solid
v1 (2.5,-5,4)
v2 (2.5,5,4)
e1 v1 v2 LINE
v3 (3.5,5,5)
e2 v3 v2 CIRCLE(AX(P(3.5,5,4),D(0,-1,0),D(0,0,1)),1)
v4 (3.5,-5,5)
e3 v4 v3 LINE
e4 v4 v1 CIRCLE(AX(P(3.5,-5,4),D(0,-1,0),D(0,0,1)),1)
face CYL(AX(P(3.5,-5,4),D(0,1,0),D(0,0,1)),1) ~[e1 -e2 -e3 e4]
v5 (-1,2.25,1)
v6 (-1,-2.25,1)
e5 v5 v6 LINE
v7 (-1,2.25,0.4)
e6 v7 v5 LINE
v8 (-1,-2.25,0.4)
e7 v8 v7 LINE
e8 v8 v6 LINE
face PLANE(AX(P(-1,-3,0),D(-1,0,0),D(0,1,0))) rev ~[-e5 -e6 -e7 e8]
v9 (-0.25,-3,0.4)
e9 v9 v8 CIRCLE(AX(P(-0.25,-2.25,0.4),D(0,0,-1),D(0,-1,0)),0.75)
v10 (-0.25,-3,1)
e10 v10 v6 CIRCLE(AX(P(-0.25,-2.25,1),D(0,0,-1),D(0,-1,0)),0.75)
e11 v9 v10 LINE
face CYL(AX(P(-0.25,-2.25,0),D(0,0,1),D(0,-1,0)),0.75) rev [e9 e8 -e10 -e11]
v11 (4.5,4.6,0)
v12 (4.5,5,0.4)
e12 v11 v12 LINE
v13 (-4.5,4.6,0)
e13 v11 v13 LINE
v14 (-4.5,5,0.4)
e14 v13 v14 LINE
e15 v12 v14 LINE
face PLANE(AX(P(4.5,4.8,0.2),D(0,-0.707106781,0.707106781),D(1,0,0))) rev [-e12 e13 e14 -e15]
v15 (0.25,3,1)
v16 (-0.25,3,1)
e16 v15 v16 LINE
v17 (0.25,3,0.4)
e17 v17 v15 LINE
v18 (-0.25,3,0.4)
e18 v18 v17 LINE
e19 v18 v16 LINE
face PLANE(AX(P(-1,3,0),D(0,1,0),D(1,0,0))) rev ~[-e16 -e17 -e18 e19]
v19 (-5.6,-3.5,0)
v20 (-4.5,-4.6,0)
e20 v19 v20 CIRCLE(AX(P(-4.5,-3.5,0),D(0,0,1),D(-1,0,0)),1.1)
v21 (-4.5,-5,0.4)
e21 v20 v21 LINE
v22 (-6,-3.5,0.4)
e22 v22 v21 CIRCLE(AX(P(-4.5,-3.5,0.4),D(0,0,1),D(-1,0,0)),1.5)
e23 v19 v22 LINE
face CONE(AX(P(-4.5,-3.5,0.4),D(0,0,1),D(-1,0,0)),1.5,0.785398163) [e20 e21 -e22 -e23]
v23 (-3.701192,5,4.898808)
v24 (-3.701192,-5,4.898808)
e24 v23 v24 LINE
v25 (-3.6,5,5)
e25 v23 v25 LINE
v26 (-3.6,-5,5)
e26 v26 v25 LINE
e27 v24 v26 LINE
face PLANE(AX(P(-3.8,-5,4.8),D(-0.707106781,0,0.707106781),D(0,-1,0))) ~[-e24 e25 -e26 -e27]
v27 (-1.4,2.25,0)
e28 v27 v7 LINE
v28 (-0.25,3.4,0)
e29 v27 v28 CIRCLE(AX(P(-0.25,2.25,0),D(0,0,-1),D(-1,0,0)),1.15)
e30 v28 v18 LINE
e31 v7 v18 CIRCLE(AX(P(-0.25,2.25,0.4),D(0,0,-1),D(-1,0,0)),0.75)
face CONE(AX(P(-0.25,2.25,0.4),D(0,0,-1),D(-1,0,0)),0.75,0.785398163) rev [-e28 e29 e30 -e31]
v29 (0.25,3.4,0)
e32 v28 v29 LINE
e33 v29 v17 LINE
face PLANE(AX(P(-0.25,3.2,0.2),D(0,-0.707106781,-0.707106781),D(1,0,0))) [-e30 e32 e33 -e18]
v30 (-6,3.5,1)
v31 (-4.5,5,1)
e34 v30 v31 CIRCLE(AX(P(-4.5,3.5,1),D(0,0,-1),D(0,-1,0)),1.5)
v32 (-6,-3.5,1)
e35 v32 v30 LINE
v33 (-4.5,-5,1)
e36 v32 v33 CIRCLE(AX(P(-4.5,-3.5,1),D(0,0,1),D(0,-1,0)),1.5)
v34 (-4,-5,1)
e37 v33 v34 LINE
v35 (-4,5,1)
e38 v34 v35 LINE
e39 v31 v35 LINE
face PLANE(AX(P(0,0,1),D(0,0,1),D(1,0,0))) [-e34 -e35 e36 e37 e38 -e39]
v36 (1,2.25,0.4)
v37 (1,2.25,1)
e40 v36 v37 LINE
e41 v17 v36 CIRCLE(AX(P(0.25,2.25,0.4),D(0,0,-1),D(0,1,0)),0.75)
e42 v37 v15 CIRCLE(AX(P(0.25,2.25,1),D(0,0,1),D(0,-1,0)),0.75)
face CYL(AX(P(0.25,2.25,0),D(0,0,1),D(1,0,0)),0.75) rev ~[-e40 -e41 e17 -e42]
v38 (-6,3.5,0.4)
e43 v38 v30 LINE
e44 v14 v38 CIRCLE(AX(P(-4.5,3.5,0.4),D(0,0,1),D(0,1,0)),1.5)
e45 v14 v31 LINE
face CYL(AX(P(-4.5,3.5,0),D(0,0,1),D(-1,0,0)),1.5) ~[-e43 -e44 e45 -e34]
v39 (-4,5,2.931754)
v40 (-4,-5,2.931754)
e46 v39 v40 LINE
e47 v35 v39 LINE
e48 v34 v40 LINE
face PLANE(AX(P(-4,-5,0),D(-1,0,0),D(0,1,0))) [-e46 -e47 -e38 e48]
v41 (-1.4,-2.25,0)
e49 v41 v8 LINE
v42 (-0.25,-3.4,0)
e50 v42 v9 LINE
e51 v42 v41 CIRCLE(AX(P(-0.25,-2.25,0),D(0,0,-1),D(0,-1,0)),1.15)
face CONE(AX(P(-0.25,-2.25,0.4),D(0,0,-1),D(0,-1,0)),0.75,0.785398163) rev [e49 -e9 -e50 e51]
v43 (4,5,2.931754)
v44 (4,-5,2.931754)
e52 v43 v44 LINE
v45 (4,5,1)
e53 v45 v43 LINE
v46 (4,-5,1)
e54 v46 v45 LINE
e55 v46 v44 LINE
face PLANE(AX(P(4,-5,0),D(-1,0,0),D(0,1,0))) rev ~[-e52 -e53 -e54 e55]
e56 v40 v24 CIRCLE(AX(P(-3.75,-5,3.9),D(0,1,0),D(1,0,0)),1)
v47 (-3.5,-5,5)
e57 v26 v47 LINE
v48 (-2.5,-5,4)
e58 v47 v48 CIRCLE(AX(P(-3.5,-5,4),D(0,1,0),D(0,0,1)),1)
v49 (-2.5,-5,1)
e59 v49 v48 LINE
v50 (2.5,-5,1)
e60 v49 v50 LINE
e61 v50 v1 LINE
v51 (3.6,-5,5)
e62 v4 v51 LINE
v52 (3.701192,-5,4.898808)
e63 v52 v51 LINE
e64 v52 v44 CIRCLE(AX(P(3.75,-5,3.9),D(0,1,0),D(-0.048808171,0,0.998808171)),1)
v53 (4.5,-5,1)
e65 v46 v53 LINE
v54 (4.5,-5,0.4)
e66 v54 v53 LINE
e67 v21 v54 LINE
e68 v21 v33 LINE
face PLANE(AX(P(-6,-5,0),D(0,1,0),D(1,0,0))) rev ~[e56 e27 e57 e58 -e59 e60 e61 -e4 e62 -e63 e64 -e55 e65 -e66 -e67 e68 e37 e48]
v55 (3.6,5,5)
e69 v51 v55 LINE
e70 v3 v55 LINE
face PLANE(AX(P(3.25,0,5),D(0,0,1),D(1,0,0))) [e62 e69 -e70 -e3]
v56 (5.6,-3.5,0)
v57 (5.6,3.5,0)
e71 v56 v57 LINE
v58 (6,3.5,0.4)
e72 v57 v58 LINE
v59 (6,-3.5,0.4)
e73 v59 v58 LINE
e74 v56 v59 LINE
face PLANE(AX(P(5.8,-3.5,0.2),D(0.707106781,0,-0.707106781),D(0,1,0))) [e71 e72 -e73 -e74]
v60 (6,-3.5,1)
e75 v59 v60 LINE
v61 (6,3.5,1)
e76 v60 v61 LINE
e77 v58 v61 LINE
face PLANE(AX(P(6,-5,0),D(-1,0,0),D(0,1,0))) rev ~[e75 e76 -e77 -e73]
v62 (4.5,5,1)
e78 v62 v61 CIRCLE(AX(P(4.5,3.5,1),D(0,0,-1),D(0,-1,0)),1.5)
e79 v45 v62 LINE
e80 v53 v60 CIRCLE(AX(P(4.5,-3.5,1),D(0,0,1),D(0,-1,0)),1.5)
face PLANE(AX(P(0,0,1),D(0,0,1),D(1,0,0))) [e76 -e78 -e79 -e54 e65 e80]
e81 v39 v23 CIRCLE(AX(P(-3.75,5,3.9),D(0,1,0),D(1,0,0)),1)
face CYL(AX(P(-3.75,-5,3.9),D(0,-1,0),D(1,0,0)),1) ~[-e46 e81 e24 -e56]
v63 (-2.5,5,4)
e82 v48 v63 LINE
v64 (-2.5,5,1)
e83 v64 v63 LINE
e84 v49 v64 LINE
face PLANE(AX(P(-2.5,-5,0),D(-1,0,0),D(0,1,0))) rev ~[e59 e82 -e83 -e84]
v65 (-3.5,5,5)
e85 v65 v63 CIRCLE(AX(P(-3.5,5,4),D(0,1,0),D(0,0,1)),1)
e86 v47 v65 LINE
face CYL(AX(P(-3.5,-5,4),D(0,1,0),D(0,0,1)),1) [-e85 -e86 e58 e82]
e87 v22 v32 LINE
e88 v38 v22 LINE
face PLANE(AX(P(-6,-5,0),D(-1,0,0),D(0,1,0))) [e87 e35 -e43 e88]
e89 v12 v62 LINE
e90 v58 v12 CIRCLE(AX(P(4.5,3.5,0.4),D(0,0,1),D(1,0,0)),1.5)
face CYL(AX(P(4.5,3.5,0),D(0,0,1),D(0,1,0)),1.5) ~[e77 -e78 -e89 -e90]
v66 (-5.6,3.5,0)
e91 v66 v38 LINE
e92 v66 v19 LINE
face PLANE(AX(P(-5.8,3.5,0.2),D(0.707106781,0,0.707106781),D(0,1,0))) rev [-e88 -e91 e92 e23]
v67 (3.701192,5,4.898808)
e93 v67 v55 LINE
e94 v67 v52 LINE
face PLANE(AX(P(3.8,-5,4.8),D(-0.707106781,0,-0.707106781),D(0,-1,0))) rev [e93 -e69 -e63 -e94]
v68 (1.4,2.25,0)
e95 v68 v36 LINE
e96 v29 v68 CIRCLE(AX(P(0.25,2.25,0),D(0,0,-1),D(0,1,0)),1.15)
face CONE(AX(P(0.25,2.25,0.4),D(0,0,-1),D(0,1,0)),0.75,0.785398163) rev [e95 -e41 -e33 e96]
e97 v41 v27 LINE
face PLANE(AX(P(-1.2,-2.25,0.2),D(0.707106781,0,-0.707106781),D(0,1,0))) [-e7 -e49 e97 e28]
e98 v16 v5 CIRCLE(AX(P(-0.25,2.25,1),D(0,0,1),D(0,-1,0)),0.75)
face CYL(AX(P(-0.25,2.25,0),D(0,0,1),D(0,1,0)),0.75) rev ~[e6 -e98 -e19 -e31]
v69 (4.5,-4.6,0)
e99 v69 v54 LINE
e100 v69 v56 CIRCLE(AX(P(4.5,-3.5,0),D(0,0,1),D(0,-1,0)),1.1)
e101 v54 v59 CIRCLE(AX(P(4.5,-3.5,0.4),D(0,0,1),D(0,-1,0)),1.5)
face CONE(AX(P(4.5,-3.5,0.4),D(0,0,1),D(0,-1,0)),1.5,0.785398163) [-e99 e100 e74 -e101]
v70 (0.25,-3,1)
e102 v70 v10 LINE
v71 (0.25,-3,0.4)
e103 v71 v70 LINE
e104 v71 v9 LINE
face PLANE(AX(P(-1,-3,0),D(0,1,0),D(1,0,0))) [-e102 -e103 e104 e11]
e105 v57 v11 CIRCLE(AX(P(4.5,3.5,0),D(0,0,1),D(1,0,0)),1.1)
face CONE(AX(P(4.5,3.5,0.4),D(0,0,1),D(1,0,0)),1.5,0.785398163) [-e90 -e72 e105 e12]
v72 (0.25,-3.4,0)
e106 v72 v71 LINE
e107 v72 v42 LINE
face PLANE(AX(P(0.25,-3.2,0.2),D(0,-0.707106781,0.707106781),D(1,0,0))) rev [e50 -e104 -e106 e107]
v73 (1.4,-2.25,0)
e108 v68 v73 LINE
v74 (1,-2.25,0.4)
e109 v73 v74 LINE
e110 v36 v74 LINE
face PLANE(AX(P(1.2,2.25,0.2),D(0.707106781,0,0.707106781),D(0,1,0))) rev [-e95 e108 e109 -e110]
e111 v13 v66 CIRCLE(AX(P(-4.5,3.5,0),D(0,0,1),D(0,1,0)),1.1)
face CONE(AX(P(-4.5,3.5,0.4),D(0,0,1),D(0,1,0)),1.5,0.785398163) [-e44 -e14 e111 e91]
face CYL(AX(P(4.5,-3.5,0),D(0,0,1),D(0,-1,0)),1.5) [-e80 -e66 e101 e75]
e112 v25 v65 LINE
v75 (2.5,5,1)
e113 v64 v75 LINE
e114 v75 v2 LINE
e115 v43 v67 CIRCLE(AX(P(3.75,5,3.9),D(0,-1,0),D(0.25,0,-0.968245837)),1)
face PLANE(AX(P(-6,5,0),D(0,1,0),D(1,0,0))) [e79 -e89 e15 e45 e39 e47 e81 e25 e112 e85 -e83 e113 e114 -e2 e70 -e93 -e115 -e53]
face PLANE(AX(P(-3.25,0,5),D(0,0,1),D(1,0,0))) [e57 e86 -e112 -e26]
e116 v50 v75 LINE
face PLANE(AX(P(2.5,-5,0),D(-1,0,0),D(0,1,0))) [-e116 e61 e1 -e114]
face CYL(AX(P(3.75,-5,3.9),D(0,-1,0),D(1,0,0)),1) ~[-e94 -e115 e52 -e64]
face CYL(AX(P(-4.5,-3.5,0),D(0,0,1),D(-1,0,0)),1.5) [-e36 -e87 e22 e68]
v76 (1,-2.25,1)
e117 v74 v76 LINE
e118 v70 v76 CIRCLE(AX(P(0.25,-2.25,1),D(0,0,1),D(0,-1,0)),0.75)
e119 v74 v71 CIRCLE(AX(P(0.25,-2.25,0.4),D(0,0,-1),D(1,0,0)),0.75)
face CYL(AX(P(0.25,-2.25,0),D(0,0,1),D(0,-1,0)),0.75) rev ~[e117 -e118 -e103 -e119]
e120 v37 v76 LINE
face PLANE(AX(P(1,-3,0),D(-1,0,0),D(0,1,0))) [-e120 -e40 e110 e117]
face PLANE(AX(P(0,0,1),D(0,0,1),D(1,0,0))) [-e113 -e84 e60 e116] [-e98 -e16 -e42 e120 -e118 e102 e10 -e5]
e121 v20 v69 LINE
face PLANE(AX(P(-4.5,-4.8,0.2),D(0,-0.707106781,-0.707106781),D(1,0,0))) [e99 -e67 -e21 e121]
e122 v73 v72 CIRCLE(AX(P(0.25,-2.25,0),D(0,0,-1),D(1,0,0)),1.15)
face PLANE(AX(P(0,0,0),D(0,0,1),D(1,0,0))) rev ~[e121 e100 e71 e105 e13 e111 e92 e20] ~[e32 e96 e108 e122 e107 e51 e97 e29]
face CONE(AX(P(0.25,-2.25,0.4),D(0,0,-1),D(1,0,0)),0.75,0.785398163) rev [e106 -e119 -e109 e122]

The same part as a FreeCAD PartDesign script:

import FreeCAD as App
import Part
import Sketcher

V = App.Vector
Q = App.Units.Quantity


def edges_at(feature, points):
    """Names of the edges that pass closest to the given points."""
    edges = feature.Shape.Edges
    near = lambda p: min(range(len(edges)), key=lambda i: edges[i].distToShape(Part.Vertex(*p))[0])
    return sorted({f"Edge{near(p) + 1}" for p in points})

doc = App.newDocument("Part")
body = doc.addObject("PartDesign::Body", "Body")

sketch1 = body.newObject("Sketcher::SketchObject", "Sketch")
sketch1.AttachmentSupport = (doc.getObject("XY_Plane"), [""])
sketch1.MapMode = "FlatFace"
sketch1.addGeometry(Part.LineSegment(V(-1, 3, 0), V(-1, -3, 0)), False)
sketch1.addGeometry(Part.LineSegment(V(-1, -3, 0), V(1, -3, 0)), False)
sketch1.addGeometry(Part.LineSegment(V(1, -3, 0), V(1, 3, 0)), False)
sketch1.addGeometry(Part.LineSegment(V(1, 3, 0), V(-1, 3, 0)), False)
sketch1.addConstraint(Sketcher.Constraint("Coincident", 0, 2, 1, 1))
sketch1.addConstraint(Sketcher.Constraint("Coincident", 1, 2, 2, 1))
sketch1.addConstraint(Sketcher.Constraint("Coincident", 2, 2, 3, 1))
sketch1.addConstraint(Sketcher.Constraint("Coincident", 3, 2, 0, 1))
sketch1.addConstraint(Sketcher.Constraint("Vertical", 0))
sketch1.addConstraint(Sketcher.Constraint("Horizontal", 1))
sketch1.addConstraint(Sketcher.Constraint("Vertical", 2))
sketch1.addConstraint(Sketcher.Constraint("Horizontal", 3))
sketch1.addConstraint(Sketcher.Constraint("Symmetric", 0, 2, 2, 2, -1, 1))
sketch1.addConstraint(Sketcher.Constraint("DistanceX", 1, 1, 1, 2, Q("2 mm")))
sketch1.addConstraint(Sketcher.Constraint("DistanceY", 0, 2, 0, 1, Q("6 mm")))
pad1 = body.newObject("PartDesign::Pad", "Pad")
pad1.Profile = sketch1
pad1.Length = 10
body2 = doc.addObject("PartDesign::Body", "Body001")

sketch2 = body2.newObject("Sketcher::SketchObject", "Sketch001")
sketch2.AttachmentSupport = (doc.getObject("XY_Plane001"), [""])
sketch2.MapMode = "FlatFace"
sketch2.addGeometry(Part.LineSegment(V(-4, 5, 0), V(-4, -5, 0)), False)
sketch2.addGeometry(Part.LineSegment(V(-4, -5, 0), V(-2.5, -5, 0)), False)
sketch2.addGeometry(Part.LineSegment(V(-2.5, -5, 0), V(-2.5, 5, 0)), False)
sketch2.addGeometry(Part.LineSegment(V(-2.5, 5, 0), V(-4, 5, 0)), False)
sketch2.addConstraint(Sketcher.Constraint("Coincident", 0, 2, 1, 1))
sketch2.addConstraint(Sketcher.Constraint("Coincident", 1, 2, 2, 1))
sketch2.addConstraint(Sketcher.Constraint("Coincident", 2, 2, 3, 1))
sketch2.addConstraint(Sketcher.Constraint("Coincident", 3, 2, 0, 1))
sketch2.addConstraint(Sketcher.Constraint("Vertical", 0))
sketch2.addConstraint(Sketcher.Constraint("Horizontal", 1))
sketch2.addConstraint(Sketcher.Constraint("Vertical", 2))
sketch2.addConstraint(Sketcher.Constraint("Horizontal", 3))
sketch2.addConstraint(Sketcher.Constraint("DistanceY", 0, 2, 0, 1, Q("10 mm")))
sketch2.addConstraint(Sketcher.Constraint("DistanceX", 1, 1, 1, 2, Q("1.5 mm")))
sketch2.addConstraint(Sketcher.Constraint("DistanceX", 0, 2, -1, 1, Q("4 mm")))
sketch2.addConstraint(Sketcher.Constraint("DistanceY", 0, 2, -1, 1, Q("5 mm")))
pad2 = body2.newObject("PartDesign::Pad", "Pad001")
pad2.Profile = sketch2
pad2.Length = 5
doc.recompute()

chamfer = body2.newObject("PartDesign::Chamfer", "Chamfer")
chamfer.Base = (pad2, edges_at(pad2, [(-4, 0, 5)]))
chamfer.Size = 0.4
body3 = doc.addObject("PartDesign::Body", "Body002")

sketch3 = body3.newObject("Sketcher::SketchObject", "Sketch002")
sketch3.AttachmentSupport = (doc.getObject("XZ_Plane002"), [""])
sketch3.MapMode = "FlatFace"
sketch3.AttachmentOffset = App.Placement(V(0, 0, 5), App.Rotation())
sketch3.addGeometry(Part.Circle(V(3.8, 3.9, 0), V(0, 0, 1), 1), False)
sketch3.addConstraint(Sketcher.Constraint("Diameter", 0, Q("2 mm")))
sketch3.addConstraint(Sketcher.Constraint("DistanceY", -1, 1, 0, 3, Q("3.9 mm")))
sketch3.addConstraint(Sketcher.Constraint("DistanceX", -1, 1, 0, 3, Q("3.75 mm")))
pad3 = body3.newObject("PartDesign::Pad", "Pad002")
pad3.Profile = sketch3
pad3.Length = 10
pad3.Reversed = True
body4 = doc.addObject("PartDesign::Body", "Body003")

sketch4 = body4.newObject("Sketcher::SketchObject", "Sketch003")
sketch4.AttachmentSupport = (doc.getObject("XZ_Plane003"), [""])
sketch4.MapMode = "FlatFace"
sketch4.AttachmentOffset = App.Placement(V(0, 0, 5), App.Rotation())
sketch4.addGeometry(Part.Circle(V(-3.8, 3.9, 0), V(0, 0, 1), 1), False)
sketch4.addConstraint(Sketcher.Constraint("Diameter", 0, Q("2 mm")))
sketch4.addConstraint(Sketcher.Constraint("DistanceY", -1, 1, 0, 3, Q("3.9 mm")))
sketch4.addConstraint(Sketcher.Constraint("DistanceX", 0, 3, -1, 1, Q("3.75 mm")))
pad4 = body4.newObject("PartDesign::Pad", "Pad003")
pad4.Profile = sketch4
pad4.Length = 10
pad4.Reversed = True
body5 = doc.addObject("PartDesign::Body", "Body004")

sketch5 = body5.newObject("Sketcher::SketchObject", "Sketch004")
sketch5.AttachmentSupport = (doc.getObject("XY_Plane004"), [""])
sketch5.MapMode = "FlatFace"
sketch5.addGeometry(Part.LineSegment(V(-6, 5, 0), V(-6, -5, 0)), False)
sketch5.addGeometry(Part.LineSegment(V(-6, -5, 0), V(6, -5, 0)), False)
sketch5.addGeometry(Part.LineSegment(V(6, -5, 0), V(6, 5, 0)), False)
sketch5.addGeometry(Part.LineSegment(V(6, 5, 0), V(-6, 5, 0)), False)
sketch5.addConstraint(Sketcher.Constraint("Coincident", 0, 2, 1, 1))
sketch5.addConstraint(Sketcher.Constraint("Coincident", 1, 2, 2, 1))
sketch5.addConstraint(Sketcher.Constraint("Coincident", 2, 2, 3, 1))
sketch5.addConstraint(Sketcher.Constraint("Coincident", 3, 2, 0, 1))
sketch5.addConstraint(Sketcher.Constraint("Vertical", 0))
sketch5.addConstraint(Sketcher.Constraint("Horizontal", 1))
sketch5.addConstraint(Sketcher.Constraint("Vertical", 2))
sketch5.addConstraint(Sketcher.Constraint("Horizontal", 3))
sketch5.addConstraint(Sketcher.Constraint("Symmetric", 0, 2, 2, 2, -1, 1))
sketch5.addConstraint(Sketcher.Constraint("DistanceX", 1, 1, 1, 2, Q("12 mm")))
sketch5.addConstraint(Sketcher.Constraint("DistanceY", 0, 2, 0, 1, Q("10 mm")))
pad5 = body5.newObject("PartDesign::Pad", "Pad004")
pad5.Profile = sketch5
pad5.Length = 1
body6 = doc.addObject("PartDesign::Body", "Body005")
body6.AllowCompound = True

sketch6 = body6.newObject("Sketcher::SketchObject", "Sketch005")
sketch6.AttachmentSupport = (doc.getObject("XY_Plane005"), [""])
sketch6.MapMode = "FlatFace"
sketch6.addGeometry(Part.LineSegment(V(2.5, 5, 0), V(2.5, -5, 0)), False)
sketch6.addGeometry(Part.LineSegment(V(2.5, -5, 0), V(4, -5, 0)), False)
sketch6.addGeometry(Part.LineSegment(V(4, -5, 0), V(4, 5, 0)), False)
sketch6.addGeometry(Part.LineSegment(V(4, 5, 0), V(2.5, 5, 0)), False)
sketch6.addConstraint(Sketcher.Constraint("Coincident", 0, 2, 1, 1))
sketch6.addConstraint(Sketcher.Constraint("Coincident", 1, 2, 2, 1))
sketch6.addConstraint(Sketcher.Constraint("Coincident", 2, 2, 3, 1))
sketch6.addConstraint(Sketcher.Constraint("Coincident", 3, 2, 0, 1))
sketch6.addConstraint(Sketcher.Constraint("Vertical", 0))
sketch6.addConstraint(Sketcher.Constraint("Horizontal", 1))
sketch6.addConstraint(Sketcher.Constraint("Vertical", 2))
sketch6.addConstraint(Sketcher.Constraint("Horizontal", 3))
sketch6.addConstraint(Sketcher.Constraint("DistanceY", 0, 2, 0, 1, Q("10 mm")))
sketch6.addConstraint(Sketcher.Constraint("DistanceX", 1, 1, 1, 2, Q("1.5 mm")))
sketch6.addConstraint(Sketcher.Constraint("DistanceY", 0, 2, -1, 1, Q("5 mm")))
sketch6.addConstraint(Sketcher.Constraint("DistanceX", -1, 1, 1, 2, Q("4 mm")))
pad6 = body6.newObject("PartDesign::Pad", "Pad005")
pad6.Profile = sketch6
pad6.Length = 5
doc.recompute()

chamfer2 = body6.newObject("PartDesign::Chamfer", "Chamfer001")
chamfer2.Base = (pad6, edges_at(pad6, [(4, 0, 5)]))
chamfer2.Size = 0.4
doc.recompute()

boolean = body6.newObject("PartDesign::Boolean", "Boolean")
boolean.Type = "Fuse"
boolean.addObjects([body2])
doc.recompute()

boolean2 = body6.newObject("PartDesign::Boolean", "Boolean001")
boolean2.Type = "Fuse"
boolean2.addObjects([body3])
doc.recompute()

boolean3 = body6.newObject("PartDesign::Boolean", "Boolean002")
boolean3.Type = "Fuse"
boolean3.addObjects([body4])
doc.recompute()

boolean4 = body6.newObject("PartDesign::Boolean", "Boolean003")
boolean4.Type = "Fuse"
boolean4.addObjects([body5])
doc.recompute()

boolean5 = body6.newObject("PartDesign::Boolean", "Boolean004")
boolean5.Type = "Cut"
boolean5.addObjects([body])
doc.recompute()

fillet = body6.newObject("PartDesign::Fillet", "Fillet")
fillet.Base = (boolean5, edges_at(boolean5, [
    (1, -3, 0.5),
    (-1, -3, 0.5),
    (1, 3, 0.5),
    (-1, 3, 0.5),
]))
fillet.Radius = 0.75
doc.recompute()

fillet2 = body6.newObject("PartDesign::Fillet", "Fillet001")
fillet2.Base = (fillet, edges_at(fillet, [
    (6, 5, 0.5),
    (-6, 5, 0.5),
    (6, -5, 0.5),
    (-6, -5, 0.5),
]))
fillet2.Radius = 1.5
doc.recompute()

chamfer3 = body6.newObject("PartDesign::Chamfer", "Chamfer002")
chamfer3.Base = (fillet2, edges_at(fillet2, [
    (0, -5, 0),
    (5.561, -4.561, 0),
    (6, 0, 0),
    (5.561, 4.561, 0),
    (0, 5, 0),
    (0, -5, 0),
    (0, 5, 0),
    (-1, 0, 0),
    (-0.78, 2.78, 0),
    (0, 3, 0),
    (0.78, 2.78, 0),
    (1, 0, 0),
    (0.78, -2.78, 0),
    (0, -3, 0),
    (-0.78, -2.78, 0),
    (0, -5, 0),
    (0, 5, 0),
    (0, -5, 0),
    (0, 5, 0),
    (-5.561, 4.561, 0),
    (-6, 0, 0),
    (-5.561, -4.561, 0),
    (0, -5, 0),
]))
chamfer3.Size = 0.4
doc.recompute()

fillet3 = body6.newObject("PartDesign::Fillet", "Fillet002")
fillet3.Base = (chamfer3, edges_at(chamfer3, [(2.5, 0, 5), (-2.5, 0, 5)]))
fillet3.Radius = 1

doc.recompute()
